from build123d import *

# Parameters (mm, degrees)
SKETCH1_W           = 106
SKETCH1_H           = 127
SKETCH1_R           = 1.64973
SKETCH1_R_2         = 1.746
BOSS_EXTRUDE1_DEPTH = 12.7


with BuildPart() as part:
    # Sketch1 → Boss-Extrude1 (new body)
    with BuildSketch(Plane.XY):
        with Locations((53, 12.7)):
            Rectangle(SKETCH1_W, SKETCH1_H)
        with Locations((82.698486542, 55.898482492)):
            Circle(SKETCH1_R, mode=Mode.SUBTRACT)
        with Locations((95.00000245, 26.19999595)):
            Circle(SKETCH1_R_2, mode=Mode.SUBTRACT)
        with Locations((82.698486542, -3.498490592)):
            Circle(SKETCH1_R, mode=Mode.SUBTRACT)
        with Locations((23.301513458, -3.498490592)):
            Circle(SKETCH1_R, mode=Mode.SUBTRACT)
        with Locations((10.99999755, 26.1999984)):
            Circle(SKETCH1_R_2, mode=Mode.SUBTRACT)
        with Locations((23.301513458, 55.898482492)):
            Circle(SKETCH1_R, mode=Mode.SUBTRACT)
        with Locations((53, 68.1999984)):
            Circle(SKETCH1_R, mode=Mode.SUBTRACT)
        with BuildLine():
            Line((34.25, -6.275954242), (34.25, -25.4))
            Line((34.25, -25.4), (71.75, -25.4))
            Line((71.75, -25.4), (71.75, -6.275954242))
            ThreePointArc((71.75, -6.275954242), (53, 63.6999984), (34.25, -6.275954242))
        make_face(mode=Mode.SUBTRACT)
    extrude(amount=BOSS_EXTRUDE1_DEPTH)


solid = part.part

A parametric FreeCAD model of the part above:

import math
import FreeCAD as App
import Part
import Sketcher
Q = App.Units.Quantity

doc = App.newDocument("Part")
body = doc.addObject("PartDesign::Body", "Body")

# Sketch on XY plane
sketch1 = body.newObject("Sketcher::SketchObject", "Sketch")
sketch1.AttachmentSupport = (doc.getObject("XY_Plane"), [""])
sketch1.MapMode = "FlatFace"
sketch1.addGeometry(Part.LineSegment(App.Vector(0, 76.2, 0), App.Vector(0, -50.8, 0)), False)
sketch1.addGeometry(Part.LineSegment(App.Vector(0, -50.8, 0), App.Vector(106, -50.8, 0)), False)
sketch1.addGeometry(Part.LineSegment(App.Vector(106, -50.8, 0), App.Vector(106, 76.2, 0)), False)
sketch1.addGeometry(Part.LineSegment(App.Vector(106, 76.2, 0), App.Vector(0, 76.2, 0)), False)
sketch1.addGeometry(Part.Circle(App.Vector(23.301513, -3.498491, 0), App.Vector(0, 0, 1), 1.64973), False)
sketch1.addGeometry(Part.Circle(App.Vector(82.698487, -3.498491, 0), App.Vector(0, 0, 1), 1.64973), False)
sketch1.addGeometry(Part.LineSegment(App.Vector(34.25, -25.4, 0), App.Vector(34.25, -6.275954, 0)), False)
sketch1.addGeometry(Part.ArcOfCircle(Part.Circle(App.Vector(53, 26.199998, 0), App.Vector(0, 0, 1), 37.5), math.radians(-60), math.radians(240)), False)
sketch1.addGeometry(Part.LineSegment(App.Vector(71.75, -6.275954, 0), App.Vector(71.75, -25.4, 0)), False)
sketch1.addGeometry(Part.LineSegment(App.Vector(71.75, -25.4, 0), App.Vector(34.25, -25.4, 0)), False)
sketch1.addGeometry(Part.Circle(App.Vector(10.999998, 26.199998, 0), App.Vector(0, 0, 1), 1.746), False)
sketch1.addGeometry(Part.Circle(App.Vector(23.301513, 55.898482, 0), App.Vector(0, 0, 1), 1.64973), False)
sketch1.addGeometry(Part.Circle(App.Vector(95.000002, 26.199996, 0), App.Vector(0, 0, 1), 1.746), False)
sketch1.addGeometry(Part.Circle(App.Vector(53, 68.199998, 0), App.Vector(0, 0, 1), 1.64973), False)
sketch1.addGeometry(Part.Circle(App.Vector(82.698487, 55.898482, 0), App.Vector(0, 0, 1), 1.64973), False)
sketch1.addConstraint(Sketcher.Constraint("Coincident", 0, 2, 1, 1))
sketch1.addConstraint(Sketcher.Constraint("Coincident", 1, 2, 2, 1))
sketch1.addConstraint(Sketcher.Constraint("Coincident", 2, 2, 3, 1))
sketch1.addConstraint(Sketcher.Constraint("Coincident", 3, 2, 0, 1))
sketch1.addConstraint(Sketcher.Constraint("Coincident", 6, 2, 7, 2))
sketch1.addConstraint(Sketcher.Constraint("Coincident", 7, 1, 8, 1))
sketch1.addConstraint(Sketcher.Constraint("Coincident", 8, 2, 9, 1))
sketch1.addConstraint(Sketcher.Constraint("Coincident", 9, 2, 6, 1))
sketch1.addConstraint(Sketcher.Constraint("Vertical", 0))
sketch1.addConstraint(Sketcher.Constraint("Horizontal", 1))
sketch1.addConstraint(Sketcher.Constraint("Vertical", 2))
sketch1.addConstraint(Sketcher.Constraint("Horizontal", 3))
sketch1.addConstraint(Sketcher.Constraint("Vertical", 6))
sketch1.addConstraint(Sketcher.Constraint("Vertical", 8))
sketch1.addConstraint(Sketcher.Constraint("Horizontal", 9))
sketch1.addConstraint(Sketcher.Constraint("Equal", 4, 5))
sketch1.addConstraint(Sketcher.Constraint("Equal", 5, 11))
sketch1.addConstraint(Sketcher.Constraint("Equal", 10, 12))
sketch1.addConstraint(Sketcher.Constraint("Equal", 11, 13))
sketch1.addConstraint(Sketcher.Constraint("Equal", 13, 14))
sketch1.addConstraint(Sketcher.Constraint("PointOnObject", 0, 2, -2))
sketch1.addConstraint(Sketcher.Constraint("Horizontal", 4, 3, 5, 3))
sketch1.addConstraint(Sketcher.Constraint("Horizontal", 7, 3, 10, 3))
sketch1.addConstraint(Sketcher.Constraint("Horizontal", 11, 3, 14, 3))
sketch1.addConstraint(Sketcher.Constraint("Horizontal", 6, 2, 7, 1))
sketch1.addConstraint(Sketcher.Constraint("Vertical", 4, 3, 11, 3))
sketch1.addConstraint(Sketcher.Constraint("Vertical", 7, 3, 13, 3))
sketch1.addConstraint(Sketcher.Constraint("Vertical", 5, 3, 14, 3))
sketch1.addConstraint(Sketcher.Constraint("Radius", 7, Q("37.5 mm")))
sketch1.addConstraint(Sketcher.Constraint("DistanceX", 1, 1, 1, 2, Q("106 mm")))
sketch1.addConstraint(Sketcher.Constraint("DistanceY", 0, 2, 0, 1, Q("127 mm")))
sketch1.addConstraint(Sketcher.Constraint("Diameter", 10, Q("3.492 mm")))
sketch1.addConstraint(Sketcher.Constraint("DistanceX", 9, 2, 9, 1, Q("37.5 mm")))
sketch1.addConstraint(Sketcher.Constraint("DistanceX", -1, 1, 7, 3, Q("53 mm")))
sketch1.addConstraint(Sketcher.Constraint("DistanceY", 7, 3, 13, 3, Q("42 mm")))
sketch1.addConstraint(Sketcher.Constraint("DistanceY", 0, 2, 10, 3, Q("76.999998 mm")))
sketch1.addConstraint(Sketcher.Constraint("DistanceY", -1, 1, 7, 3, Q("26.199998 mm")))
sketch1.addConstraint(Sketcher.Constraint("DistanceY", 8, 2, -1, 1, Q("25.4 mm")))
sketch1.addConstraint(Sketcher.Constraint("Diameter", 4, Q("3.29946 mm")))
sketch1.addConstraint(Sketcher.Constraint("DistanceY", 4, 3, -1, 1, Q("3.498491 mm")))
sketch1.addConstraint(Sketcher.Constraint("DistanceX", 10, 3, 5, 3, Q("71.698489 mm")))
sketch1.addConstraint(Sketcher.Constraint("DistanceX", 4, 3, 12, 3, Q("71.698489 mm")))
sketch1.addConstraint(Sketcher.Constraint("DistanceY", 7, 1, 12, 3, Q("32.47595 mm")))
sketch1.addConstraint(Sketcher.Constraint("DistanceX", -1, 1, 4, 3, Q("23.301513 mm")))
sketch1.addConstraint(Sketcher.Constraint("DistanceX", -1, 1, 5, 3, Q("82.698487 mm")))
sketch1.addConstraint(Sketcher.Constraint("DistanceY", -1, 1, 11, 3, Q("55.898482 mm")))
pad1 = body.newObject("PartDesign::Pad", "Pad")
pad1.Profile = sketch1
pad1.Length = 12.7

doc.recompute()
